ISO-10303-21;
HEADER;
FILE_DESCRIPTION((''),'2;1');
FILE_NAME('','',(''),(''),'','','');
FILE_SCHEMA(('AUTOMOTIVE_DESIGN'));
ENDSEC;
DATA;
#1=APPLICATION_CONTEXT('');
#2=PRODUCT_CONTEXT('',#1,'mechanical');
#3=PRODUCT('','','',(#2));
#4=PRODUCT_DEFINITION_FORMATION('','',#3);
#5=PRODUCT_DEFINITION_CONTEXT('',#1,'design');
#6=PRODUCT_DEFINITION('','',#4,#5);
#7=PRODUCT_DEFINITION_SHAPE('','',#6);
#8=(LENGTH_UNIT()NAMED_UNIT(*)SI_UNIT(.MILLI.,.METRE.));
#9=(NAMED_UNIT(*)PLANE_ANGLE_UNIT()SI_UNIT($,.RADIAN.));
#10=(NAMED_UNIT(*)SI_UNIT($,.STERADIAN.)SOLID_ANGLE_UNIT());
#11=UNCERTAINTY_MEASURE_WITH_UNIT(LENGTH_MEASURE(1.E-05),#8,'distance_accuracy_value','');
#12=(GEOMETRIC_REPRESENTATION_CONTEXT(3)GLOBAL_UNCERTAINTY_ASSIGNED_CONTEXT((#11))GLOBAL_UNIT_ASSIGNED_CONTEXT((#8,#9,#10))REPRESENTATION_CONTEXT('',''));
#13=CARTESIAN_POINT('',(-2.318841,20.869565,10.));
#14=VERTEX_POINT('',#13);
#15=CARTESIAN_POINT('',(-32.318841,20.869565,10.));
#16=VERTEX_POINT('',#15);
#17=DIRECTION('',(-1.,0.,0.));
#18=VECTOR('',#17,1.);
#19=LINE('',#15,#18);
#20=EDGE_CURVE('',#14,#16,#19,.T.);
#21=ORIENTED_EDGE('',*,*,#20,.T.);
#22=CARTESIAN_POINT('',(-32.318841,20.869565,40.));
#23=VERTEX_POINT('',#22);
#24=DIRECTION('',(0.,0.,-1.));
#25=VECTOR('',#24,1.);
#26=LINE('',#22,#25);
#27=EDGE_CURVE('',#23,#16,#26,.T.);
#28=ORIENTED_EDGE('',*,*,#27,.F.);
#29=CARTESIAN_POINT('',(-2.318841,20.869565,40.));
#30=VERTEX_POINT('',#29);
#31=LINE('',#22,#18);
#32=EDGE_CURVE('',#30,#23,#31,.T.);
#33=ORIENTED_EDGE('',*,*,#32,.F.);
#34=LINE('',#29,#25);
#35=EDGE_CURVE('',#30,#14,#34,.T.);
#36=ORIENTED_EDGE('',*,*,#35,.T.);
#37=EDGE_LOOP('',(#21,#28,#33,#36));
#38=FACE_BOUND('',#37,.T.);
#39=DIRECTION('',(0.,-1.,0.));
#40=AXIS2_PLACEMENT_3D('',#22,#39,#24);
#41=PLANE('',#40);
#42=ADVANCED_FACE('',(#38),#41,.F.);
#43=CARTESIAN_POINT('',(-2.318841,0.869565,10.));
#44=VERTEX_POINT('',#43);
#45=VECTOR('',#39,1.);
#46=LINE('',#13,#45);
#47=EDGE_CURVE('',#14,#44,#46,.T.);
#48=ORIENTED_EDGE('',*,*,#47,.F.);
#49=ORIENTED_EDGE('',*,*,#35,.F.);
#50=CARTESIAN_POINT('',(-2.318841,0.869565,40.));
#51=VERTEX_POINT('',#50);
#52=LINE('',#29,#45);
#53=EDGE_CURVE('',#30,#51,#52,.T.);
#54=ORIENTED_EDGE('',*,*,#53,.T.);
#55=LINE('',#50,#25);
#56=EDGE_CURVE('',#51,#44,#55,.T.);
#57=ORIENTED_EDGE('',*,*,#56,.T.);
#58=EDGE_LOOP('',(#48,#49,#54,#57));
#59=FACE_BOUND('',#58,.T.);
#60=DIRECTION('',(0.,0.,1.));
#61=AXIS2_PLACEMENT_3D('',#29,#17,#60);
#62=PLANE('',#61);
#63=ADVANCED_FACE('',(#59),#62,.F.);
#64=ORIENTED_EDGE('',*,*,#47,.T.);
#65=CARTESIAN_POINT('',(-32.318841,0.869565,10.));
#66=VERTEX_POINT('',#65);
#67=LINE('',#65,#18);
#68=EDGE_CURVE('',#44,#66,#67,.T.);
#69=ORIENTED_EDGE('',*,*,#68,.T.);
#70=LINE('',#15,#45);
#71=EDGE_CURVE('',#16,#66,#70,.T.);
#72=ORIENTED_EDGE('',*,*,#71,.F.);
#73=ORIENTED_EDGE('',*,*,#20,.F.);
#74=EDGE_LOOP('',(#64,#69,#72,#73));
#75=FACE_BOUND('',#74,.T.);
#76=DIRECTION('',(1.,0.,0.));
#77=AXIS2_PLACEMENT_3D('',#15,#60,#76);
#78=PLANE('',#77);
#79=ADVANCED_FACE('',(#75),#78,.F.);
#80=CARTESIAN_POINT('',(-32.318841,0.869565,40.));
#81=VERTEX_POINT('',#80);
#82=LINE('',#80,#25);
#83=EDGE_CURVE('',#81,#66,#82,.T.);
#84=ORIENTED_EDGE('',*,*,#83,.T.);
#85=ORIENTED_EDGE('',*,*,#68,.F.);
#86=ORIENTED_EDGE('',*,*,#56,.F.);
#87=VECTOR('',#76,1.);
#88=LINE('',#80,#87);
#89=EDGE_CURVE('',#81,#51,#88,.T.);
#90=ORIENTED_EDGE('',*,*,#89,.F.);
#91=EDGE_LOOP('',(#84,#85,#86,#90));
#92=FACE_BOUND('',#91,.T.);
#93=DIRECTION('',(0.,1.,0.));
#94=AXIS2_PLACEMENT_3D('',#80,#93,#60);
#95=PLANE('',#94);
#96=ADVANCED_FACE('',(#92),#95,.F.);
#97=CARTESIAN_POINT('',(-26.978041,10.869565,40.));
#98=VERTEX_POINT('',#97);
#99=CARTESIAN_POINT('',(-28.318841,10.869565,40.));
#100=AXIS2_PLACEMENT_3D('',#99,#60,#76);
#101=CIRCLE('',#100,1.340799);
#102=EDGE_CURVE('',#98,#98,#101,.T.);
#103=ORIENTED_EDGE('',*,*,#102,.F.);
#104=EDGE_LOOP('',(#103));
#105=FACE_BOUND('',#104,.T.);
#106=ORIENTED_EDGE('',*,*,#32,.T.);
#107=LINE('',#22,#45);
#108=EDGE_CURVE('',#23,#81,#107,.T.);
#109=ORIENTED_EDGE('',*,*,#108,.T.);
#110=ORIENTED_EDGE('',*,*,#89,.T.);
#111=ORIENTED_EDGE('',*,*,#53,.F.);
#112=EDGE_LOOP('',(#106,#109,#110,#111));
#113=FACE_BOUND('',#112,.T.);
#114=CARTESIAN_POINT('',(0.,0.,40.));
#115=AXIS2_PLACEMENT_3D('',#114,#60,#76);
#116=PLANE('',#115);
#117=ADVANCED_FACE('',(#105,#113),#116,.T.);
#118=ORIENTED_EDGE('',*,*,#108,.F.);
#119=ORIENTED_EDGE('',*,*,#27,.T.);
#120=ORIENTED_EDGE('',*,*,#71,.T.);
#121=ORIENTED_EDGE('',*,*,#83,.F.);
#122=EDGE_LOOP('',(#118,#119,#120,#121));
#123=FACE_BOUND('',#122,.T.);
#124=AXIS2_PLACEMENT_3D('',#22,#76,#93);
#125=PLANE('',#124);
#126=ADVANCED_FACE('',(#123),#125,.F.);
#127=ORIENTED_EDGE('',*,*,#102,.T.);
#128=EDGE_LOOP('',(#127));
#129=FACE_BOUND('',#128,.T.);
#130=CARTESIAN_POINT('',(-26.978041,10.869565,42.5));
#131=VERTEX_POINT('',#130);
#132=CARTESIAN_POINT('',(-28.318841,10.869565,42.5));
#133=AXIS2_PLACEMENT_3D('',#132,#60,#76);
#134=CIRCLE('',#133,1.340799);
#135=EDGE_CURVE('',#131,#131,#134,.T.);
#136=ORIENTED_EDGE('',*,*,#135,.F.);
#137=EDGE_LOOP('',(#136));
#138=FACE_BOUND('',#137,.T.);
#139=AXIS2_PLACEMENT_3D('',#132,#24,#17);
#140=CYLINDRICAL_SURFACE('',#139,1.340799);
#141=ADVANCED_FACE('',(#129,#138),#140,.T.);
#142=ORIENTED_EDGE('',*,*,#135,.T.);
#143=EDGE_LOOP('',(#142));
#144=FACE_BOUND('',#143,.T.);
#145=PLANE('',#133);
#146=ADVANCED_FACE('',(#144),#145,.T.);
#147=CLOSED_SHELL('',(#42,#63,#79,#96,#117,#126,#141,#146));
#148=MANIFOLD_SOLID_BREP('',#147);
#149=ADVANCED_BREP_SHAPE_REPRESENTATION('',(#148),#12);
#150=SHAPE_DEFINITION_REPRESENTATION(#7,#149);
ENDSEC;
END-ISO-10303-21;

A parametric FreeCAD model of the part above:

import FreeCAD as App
import Part
import Sketcher
from FreeCAD import Vector
Q = App.Units.Quantity


def add_polygon(sketch, points):
    """Adds a closed chain of lines whose ends are joined by coincident constraints."""
    first, n = sketch.GeometryCount, len(points)
    for a, b in zip(points, points[1:] + points[:1]):
        sketch.addGeometry(Part.LineSegment(App.Vector(*a, 0), App.Vector(*b, 0)), False)
    for i in range(n):
        sketch.addConstraint(Sketcher.Constraint("Coincident", first + i, 2, first + (i + 1) % n, 1))

doc = App.newDocument("Part")
body = doc.addObject("PartDesign::Body", "Body")

# Sketch on XY plane
sketch1 = body.newObject("Sketcher::SketchObject", "Sketch")
sketch1.AttachmentSupport = (doc.getObject("XY_Plane"), [""])
sketch1.MapMode = "FlatFace"
add_polygon(sketch1, [(-32, 21), (-32, 1), (8, 1), (8, 21)])  # lines 0-3
sketch1.addConstraint(Sketcher.Constraint("Vertical", 0))
sketch1.addConstraint(Sketcher.Constraint("Horizontal", 1))
sketch1.addConstraint(Sketcher.Constraint("Vertical", 2))
sketch1.addConstraint(Sketcher.Constraint("Horizontal", 3))
sketch1.addConstraint(Sketcher.Constraint("DistanceX", 1, 1, 1, 2, Q("40 mm")))
sketch1.addConstraint(Sketcher.Constraint("DistanceY", 0, 2, 0, 1, Q("20 mm")))
sketch1.addConstraint(Sketcher.Constraint("DistanceX", 0, 2, -1, 1, Q("32.318841 mm")))
sketch1.addConstraint(Sketcher.Constraint("DistanceY", -1, 1, 0, 2, Q("0.869565 mm")))
pad1 = body.newObject("PartDesign::Pad", "Pad")
pad1.Profile = sketch1
pad1.Length = 40

# Sketch on XY plane
sketch2 = body.newObject("Sketcher::SketchObject", "Sketch001")
sketch2.AttachmentSupport = (doc.getObject("XY_Plane"), [""])
sketch2.MapMode = "FlatFace"
sketch2.AttachmentOffset = App.Placement(Vector(0, 0, 40), App.Rotation())
sketch2.addGeometry(Part.Circle(Vector(-28.3, 10.9, 0), Vector(0, 0, 1), 1.3), False)
sketch2.addConstraint(Sketcher.Constraint("Diameter", 0, Q("2.681599 mm")))
sketch2.addConstraint(Sketcher.Constraint("DistanceX", 0, 3, -1, 1, Q("28.318841 mm")))
sketch2.addConstraint(Sketcher.Constraint("DistanceY", -1, 1, 0, 3, Q("10.869565 mm")))
pad2 = body.newObject("PartDesign::Pad", "Pad001")
pad2.Profile = sketch2
pad2.Length = 2.5

# Sketch on XZ plane
sketch3 = body.newObject("Sketcher::SketchObject", "Sketch002")
sketch3.AttachmentSupport = (doc.getObject("XZ_Plane"), [""])
sketch3.MapMode = "FlatFace"
sketch3.AttachmentOffset = App.Placement(Vector(0, 0, -0.869565), App.Rotation())
add_polygon(sketch3, [(-32, 10), (-32, 0), (8, 0), (8, 10)])  # lines 0-3
sketch3.addConstraint(Sketcher.Constraint("Vertical", 0))
sketch3.addConstraint(Sketcher.Constraint("Horizontal", 1))
sketch3.addConstraint(Sketcher.Constraint("Vertical", 2))
sketch3.addConstraint(Sketcher.Constraint("Horizontal", 3))
sketch3.addConstraint(Sketcher.Constraint("PointOnObject", 0, 2, -1))
sketch3.addConstraint(Sketcher.Constraint("DistanceX", 1, 1, 1, 2, Q("40 mm")))
sketch3.addConstraint(Sketcher.Constraint("DistanceY", 0, 2, 0, 1, Q("10 mm")))
sketch3.addConstraint(Sketcher.Constraint("DistanceX", 0, 2, -1, 1, Q("32.318841 mm")))
pocket1 = body.newObject("PartDesign::Pocket", "Pocket")
pocket1.Profile = sketch3
pocket1.Length = 20

# Sketch on XZ plane
sketch4 = body.newObject("Sketcher::SketchObject", "Sketch003")
sketch4.AttachmentSupport = (doc.getObject("XZ_Plane"), [""])
sketch4.MapMode = "FlatFace"
sketch4.AttachmentOffset = App.Placement(Vector(0, 0, -0.869565), App.Rotation())
add_polygon(sketch4, [(-2, 40), (-2, 10), (8, 10), (8, 40)])  # lines 0-3
sketch4.addConstraint(Sketcher.Constraint("Vertical", 0))
sketch4.addConstraint(Sketcher.Constraint("Horizontal", 1))
sketch4.addConstraint(Sketcher.Constraint("Vertical", 2))
sketch4.addConstraint(Sketcher.Constraint("Horizontal", 3))
sketch4.addConstraint(Sketcher.Constraint("DistanceX", 1, 1, 1, 2, Q("10 mm")))
sketch4.addConstraint(Sketcher.Constraint("DistanceY", 0, 2, 0, 1, Q("30 mm")))
sketch4.addConstraint(Sketcher.Constraint("DistanceY", -1, 1, 0, 2, Q("10 mm")))
sketch4.addConstraint(Sketcher.Constraint("DistanceX", 0, 2, -1, 1, Q("2.318841 mm")))
pocket2 = body.newObject("PartDesign::Pocket", "Pocket001")
pocket2.Profile = sketch4
pocket2.Length = 20

doc.recompute()
